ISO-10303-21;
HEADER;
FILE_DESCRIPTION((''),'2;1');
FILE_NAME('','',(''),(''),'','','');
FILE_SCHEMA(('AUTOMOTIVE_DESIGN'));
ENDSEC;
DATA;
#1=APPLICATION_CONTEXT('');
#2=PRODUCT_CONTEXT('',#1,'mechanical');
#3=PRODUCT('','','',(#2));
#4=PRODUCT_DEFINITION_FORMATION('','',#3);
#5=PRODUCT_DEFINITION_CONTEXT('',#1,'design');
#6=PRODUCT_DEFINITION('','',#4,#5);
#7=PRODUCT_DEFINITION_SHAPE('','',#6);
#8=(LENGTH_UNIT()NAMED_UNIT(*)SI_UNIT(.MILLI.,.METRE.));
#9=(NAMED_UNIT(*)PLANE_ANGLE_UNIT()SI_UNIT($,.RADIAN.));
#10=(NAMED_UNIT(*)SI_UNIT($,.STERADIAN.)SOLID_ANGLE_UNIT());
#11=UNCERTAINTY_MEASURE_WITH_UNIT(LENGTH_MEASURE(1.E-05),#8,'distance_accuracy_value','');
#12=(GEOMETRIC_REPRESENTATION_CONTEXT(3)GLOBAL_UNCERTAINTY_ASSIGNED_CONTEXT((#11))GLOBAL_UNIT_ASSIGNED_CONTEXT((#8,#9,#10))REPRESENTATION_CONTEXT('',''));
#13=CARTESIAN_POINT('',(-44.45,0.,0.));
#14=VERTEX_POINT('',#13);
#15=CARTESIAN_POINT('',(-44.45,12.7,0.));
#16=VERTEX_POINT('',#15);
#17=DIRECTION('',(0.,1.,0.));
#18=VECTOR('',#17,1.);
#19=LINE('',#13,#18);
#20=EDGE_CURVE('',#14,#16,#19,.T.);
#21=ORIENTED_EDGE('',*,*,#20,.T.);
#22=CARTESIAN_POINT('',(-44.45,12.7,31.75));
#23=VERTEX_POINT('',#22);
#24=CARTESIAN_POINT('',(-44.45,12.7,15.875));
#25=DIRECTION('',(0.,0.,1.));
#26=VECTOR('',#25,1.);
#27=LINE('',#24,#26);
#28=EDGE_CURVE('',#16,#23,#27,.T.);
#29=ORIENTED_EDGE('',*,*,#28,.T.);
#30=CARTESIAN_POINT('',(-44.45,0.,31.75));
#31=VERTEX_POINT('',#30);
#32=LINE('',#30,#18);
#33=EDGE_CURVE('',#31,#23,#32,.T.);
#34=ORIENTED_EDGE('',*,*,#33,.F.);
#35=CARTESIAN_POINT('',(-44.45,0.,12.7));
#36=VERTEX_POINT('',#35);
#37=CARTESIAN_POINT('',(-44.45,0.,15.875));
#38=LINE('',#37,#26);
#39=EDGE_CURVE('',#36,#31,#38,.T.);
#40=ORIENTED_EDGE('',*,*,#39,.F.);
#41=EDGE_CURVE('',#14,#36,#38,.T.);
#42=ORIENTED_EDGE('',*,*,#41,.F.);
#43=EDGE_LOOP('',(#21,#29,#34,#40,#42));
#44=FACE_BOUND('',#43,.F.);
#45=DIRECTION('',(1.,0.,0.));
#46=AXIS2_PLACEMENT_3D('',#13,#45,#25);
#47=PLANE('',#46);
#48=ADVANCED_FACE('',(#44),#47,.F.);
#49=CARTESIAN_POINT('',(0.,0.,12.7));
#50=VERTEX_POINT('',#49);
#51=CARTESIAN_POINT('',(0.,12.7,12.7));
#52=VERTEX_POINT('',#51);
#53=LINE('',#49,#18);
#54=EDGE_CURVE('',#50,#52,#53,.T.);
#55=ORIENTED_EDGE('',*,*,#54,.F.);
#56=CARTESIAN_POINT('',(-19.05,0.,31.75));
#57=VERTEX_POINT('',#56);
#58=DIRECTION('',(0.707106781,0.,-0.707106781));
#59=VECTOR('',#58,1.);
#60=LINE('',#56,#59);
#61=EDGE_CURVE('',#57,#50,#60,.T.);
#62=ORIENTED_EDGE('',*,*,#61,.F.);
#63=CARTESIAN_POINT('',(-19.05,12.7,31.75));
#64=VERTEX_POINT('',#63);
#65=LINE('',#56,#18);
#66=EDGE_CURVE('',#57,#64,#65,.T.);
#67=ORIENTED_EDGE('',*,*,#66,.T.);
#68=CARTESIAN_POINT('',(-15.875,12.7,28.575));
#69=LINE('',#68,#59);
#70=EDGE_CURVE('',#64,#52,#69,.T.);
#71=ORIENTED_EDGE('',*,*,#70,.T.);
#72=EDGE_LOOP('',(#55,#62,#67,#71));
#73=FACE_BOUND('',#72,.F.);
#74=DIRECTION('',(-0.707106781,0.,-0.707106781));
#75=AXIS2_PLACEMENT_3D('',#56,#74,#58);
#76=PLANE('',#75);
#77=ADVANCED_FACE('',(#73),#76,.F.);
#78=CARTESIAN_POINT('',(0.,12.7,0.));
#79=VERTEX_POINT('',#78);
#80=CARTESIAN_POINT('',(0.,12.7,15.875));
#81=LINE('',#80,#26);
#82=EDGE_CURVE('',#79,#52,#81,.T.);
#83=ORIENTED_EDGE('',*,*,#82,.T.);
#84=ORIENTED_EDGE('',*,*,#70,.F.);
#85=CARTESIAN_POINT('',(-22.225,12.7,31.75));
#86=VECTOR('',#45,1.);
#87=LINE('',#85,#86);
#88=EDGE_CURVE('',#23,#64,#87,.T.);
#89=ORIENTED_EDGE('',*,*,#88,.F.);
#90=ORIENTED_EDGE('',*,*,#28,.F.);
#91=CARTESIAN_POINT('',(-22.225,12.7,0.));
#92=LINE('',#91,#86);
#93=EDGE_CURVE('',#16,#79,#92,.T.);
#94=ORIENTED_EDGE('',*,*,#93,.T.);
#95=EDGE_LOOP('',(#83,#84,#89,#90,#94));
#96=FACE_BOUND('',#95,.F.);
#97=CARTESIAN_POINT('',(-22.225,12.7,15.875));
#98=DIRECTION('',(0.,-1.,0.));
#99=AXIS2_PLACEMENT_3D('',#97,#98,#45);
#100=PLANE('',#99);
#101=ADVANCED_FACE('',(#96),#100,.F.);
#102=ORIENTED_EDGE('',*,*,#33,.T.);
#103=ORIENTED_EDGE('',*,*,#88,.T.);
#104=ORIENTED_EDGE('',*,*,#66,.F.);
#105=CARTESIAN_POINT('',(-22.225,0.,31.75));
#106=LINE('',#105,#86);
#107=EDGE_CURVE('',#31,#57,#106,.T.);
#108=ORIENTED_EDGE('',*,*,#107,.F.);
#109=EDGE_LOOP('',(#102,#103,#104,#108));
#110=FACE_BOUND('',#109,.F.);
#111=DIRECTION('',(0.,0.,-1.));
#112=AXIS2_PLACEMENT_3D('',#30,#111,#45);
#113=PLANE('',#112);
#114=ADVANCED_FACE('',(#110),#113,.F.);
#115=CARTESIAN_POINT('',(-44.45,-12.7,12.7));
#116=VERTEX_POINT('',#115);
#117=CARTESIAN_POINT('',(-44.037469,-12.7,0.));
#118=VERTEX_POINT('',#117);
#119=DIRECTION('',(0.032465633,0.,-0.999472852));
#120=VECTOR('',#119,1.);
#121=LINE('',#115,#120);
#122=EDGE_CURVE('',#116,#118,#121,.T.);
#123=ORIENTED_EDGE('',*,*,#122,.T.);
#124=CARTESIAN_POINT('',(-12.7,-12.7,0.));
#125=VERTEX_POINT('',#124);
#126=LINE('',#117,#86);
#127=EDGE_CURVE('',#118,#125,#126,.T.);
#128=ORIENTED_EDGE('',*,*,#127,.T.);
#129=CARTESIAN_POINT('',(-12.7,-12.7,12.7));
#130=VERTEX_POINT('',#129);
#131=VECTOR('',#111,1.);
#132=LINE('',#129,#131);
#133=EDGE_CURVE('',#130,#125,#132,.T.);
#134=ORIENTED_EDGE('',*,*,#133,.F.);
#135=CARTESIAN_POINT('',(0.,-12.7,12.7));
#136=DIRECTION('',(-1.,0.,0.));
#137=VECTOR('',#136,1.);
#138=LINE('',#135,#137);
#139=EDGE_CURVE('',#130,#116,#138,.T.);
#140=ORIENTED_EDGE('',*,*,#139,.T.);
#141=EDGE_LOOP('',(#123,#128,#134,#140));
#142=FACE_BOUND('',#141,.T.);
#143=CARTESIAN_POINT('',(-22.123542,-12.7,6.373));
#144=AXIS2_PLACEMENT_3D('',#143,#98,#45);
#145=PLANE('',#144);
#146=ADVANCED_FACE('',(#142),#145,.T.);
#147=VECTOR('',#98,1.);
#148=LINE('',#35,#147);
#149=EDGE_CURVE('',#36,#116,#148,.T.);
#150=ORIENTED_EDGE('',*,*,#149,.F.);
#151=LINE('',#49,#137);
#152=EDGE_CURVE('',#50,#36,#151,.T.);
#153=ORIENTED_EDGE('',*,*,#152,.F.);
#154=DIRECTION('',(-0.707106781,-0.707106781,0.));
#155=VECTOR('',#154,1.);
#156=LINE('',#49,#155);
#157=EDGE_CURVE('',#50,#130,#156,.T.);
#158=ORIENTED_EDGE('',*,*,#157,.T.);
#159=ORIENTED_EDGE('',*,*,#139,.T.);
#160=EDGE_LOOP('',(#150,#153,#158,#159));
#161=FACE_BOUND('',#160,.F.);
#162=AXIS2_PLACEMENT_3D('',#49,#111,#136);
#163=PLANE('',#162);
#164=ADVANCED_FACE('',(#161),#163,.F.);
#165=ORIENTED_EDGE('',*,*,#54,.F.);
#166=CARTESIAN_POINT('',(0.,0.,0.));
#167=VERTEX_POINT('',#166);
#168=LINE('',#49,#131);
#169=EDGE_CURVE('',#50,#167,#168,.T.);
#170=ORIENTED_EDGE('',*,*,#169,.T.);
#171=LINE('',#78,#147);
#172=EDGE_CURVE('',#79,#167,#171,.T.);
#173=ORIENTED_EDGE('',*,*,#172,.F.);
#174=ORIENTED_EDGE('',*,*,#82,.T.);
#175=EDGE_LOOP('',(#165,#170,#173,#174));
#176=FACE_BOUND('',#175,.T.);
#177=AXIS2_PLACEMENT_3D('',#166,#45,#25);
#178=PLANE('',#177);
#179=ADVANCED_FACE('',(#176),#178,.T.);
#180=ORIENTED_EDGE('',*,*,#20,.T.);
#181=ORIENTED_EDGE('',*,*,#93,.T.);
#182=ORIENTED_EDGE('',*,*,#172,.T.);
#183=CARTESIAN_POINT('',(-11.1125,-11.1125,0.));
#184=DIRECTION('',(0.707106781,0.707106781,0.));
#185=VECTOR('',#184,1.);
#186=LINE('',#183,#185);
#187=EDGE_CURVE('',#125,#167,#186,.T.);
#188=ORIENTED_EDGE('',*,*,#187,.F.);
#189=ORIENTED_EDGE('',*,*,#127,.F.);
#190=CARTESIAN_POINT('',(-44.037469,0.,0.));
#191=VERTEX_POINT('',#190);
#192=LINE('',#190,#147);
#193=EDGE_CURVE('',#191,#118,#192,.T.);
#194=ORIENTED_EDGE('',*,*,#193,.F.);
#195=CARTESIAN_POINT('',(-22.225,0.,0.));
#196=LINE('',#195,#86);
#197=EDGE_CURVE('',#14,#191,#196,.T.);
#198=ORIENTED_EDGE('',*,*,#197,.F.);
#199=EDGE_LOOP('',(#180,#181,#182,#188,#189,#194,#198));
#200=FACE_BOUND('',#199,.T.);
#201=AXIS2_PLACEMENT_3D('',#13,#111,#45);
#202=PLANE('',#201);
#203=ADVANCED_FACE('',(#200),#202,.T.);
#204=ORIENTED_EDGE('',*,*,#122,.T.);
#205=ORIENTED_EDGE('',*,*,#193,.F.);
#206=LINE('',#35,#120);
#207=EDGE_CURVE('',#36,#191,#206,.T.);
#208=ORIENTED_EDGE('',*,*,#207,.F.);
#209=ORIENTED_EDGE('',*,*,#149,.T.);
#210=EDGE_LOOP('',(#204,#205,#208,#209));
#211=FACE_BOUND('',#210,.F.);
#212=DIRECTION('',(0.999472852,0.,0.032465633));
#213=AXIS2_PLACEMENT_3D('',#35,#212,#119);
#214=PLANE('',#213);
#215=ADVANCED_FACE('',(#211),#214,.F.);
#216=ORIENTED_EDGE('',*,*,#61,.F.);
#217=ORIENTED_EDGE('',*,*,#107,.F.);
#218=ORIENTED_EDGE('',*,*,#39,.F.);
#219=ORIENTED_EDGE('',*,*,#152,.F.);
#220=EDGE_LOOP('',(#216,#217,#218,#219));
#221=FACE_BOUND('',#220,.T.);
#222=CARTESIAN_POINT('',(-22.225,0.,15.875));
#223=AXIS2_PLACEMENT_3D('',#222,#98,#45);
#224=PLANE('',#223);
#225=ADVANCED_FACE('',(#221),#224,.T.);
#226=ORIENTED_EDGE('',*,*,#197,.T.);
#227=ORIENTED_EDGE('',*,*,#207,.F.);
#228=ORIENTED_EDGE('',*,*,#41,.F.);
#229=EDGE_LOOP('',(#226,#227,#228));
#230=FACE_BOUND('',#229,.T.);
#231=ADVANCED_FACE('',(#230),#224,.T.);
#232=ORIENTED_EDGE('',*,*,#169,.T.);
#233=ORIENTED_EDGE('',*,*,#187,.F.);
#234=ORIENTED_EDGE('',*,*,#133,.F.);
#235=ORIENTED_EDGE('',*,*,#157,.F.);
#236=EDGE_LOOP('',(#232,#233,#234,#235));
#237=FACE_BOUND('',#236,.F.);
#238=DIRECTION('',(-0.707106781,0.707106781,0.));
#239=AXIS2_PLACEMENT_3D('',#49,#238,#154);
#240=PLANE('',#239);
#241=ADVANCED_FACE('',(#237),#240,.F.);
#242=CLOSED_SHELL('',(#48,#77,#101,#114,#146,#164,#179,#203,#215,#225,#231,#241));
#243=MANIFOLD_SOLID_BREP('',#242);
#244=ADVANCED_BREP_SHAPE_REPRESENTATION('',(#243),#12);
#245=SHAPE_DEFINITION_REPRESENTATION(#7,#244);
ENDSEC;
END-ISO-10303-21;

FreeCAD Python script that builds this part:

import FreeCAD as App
import Part
import Sketcher
from FreeCAD import Vector
Q = App.Units.Quantity

doc = App.newDocument("Part")
body = doc.addObject("PartDesign::Body", "Body")

sketch1 = body.newObject("Sketcher::SketchObject", "Sketch")
sketch1.AttachmentSupport = (doc.getObject("XZ_Plane"), [""])
sketch1.MapMode = "FlatFace"
sketch1.addGeometry([
    Part.LineSegment(Vector(0, 12.7, 0), Vector(-44.45, 12.7, 0)),
    Part.LineSegment(Vector(-44.45, 12.7, 0), Vector(-44.037469, 0, 0)),
    Part.LineSegment(Vector(-44.037469, 0, 0), Vector(0, 0, 0)),
    Part.LineSegment(Vector(0, 0, 0), Vector(0, 12.7, 0)),
], False)
sketch1.addConstraint([
    Sketcher.Constraint("Coincident", 0, 2, 1, 1),
    Sketcher.Constraint("Coincident", 1, 2, 2, 1),
    Sketcher.Constraint("Coincident", 2, 2, 3, 1),
    Sketcher.Constraint("Coincident", 3, 2, 0, 1),
    Sketcher.Constraint("Horizontal", 0),
    Sketcher.Constraint("Horizontal", 2),
    Sketcher.Constraint("Vertical", 3),
    Sketcher.Constraint("Coincident", 2, 2, -1, 1),
    Sketcher.Constraint("DistanceY", 3, 1, 3, 2, Q("0.5 in")),
    Sketcher.Constraint("DistanceX", 0, 2, 0, 1, Q("1.75 in")),
    Sketcher.Constraint("Distance", 1, 12.706698),
])
pad1 = body.newObject("PartDesign::Pad", "Pad")
pad1.Profile = sketch1
pad1.Length = Q("0.5 in")

sketch2 = body.newObject("Sketcher::SketchObject", "Sketch001")
sketch2.AttachmentSupport = (doc.getObject("XZ_Plane"), [""])
sketch2.MapMode = "FlatFace"
sketch2.addGeometry([
    Part.LineSegment(Vector(-44, 32, 0), Vector(-44, 0, 0)),
    Part.LineSegment(Vector(-44, 0, 0), Vector(0, 0, 0)),
    Part.LineSegment(Vector(0, 0, 0), Vector(0, 32, 0)),
    Part.LineSegment(Vector(0, 32, 0), Vector(-44, 32, 0)),
], False)
sketch2.addConstraint([
    Sketcher.Constraint("Coincident", 0, 2, 1, 1),
    Sketcher.Constraint("Coincident", 1, 2, 2, 1),
    Sketcher.Constraint("Coincident", 2, 2, 3, 1),
    Sketcher.Constraint("Coincident", 3, 2, 0, 1),
    Sketcher.Constraint("Vertical", 0),
    Sketcher.Constraint("Horizontal", 1),
    Sketcher.Constraint("Vertical", 2),
    Sketcher.Constraint("Horizontal", 3),
    Sketcher.Constraint("Coincident", 1, 2, -1, 1),
    Sketcher.Constraint("DistanceX", 1, 1, 1, 2, Q("1.75 in")),
    Sketcher.Constraint("DistanceY", 0, 2, 0, 1, Q("1.25 in")),
])
pad2 = body.newObject("PartDesign::Pad", "Pad001")
pad2.Profile = sketch2
pad2.Length = Q("0.5 in")
pad2.Reversed = True

sketch3 = body.newObject("Sketcher::SketchObject", "Sketch002")
sketch3.AttachmentSupport = (doc.getObject("XZ_Plane"), [""])
sketch3.MapMode = "FlatFace"
sketch3.addGeometry([
    Part.LineSegment(Vector(0, 32, 0), Vector(-19, 32, 0)),
    Part.LineSegment(Vector(-19, 32, 0), Vector(0, 13, 0)),
    Part.LineSegment(Vector(0, 13, 0), Vector(0, 32, 0)),
], False)
sketch3.addConstraint([
    Sketcher.Constraint("Coincident", 0, 2, 1, 1),
    Sketcher.Constraint("Coincident", 1, 2, 2, 1),
    Sketcher.Constraint("Coincident", 2, 2, 0, 1),
    Sketcher.Constraint("Horizontal", 0),
    Sketcher.Constraint("Vertical", 2),
    Sketcher.Constraint("PointOnObject", 1, 2, -2),
    Sketcher.Constraint("Equal", 0, 2),
    Sketcher.Constraint("DistanceX", 0, 2, 0, 1, Q("0.75 in")),
    Sketcher.Constraint("DistanceY", -1, 1, 1, 2, Q("0.5 in")),
])
pocket1 = body.newObject("PartDesign::Pocket", "Pocket")
pocket1.Profile = sketch3
pocket1.Length = Q("1 in")

sketch4 = body.newObject("Sketcher::SketchObject", "Sketch003")
sketch4.AttachmentSupport = (doc.getObject("XY_Plane"), [""])
sketch4.MapMode = "FlatFace"
sketch4.AttachmentOffset = App.Placement(Vector(0, 0, 0.5 * 25.4), App.Rotation())
sketch4.addGeometry([
    Part.LineSegment(Vector(0, 0, 0), Vector(-13, -13, 0)),
    Part.LineSegment(Vector(-13, -13, 0), Vector(0, -13, 0)),
    Part.LineSegment(Vector(0, -13, 0), Vector(0, 0, 0)),
], False)
sketch4.addConstraint([
    Sketcher.Constraint("Coincident", 0, 2, 1, 1),
    Sketcher.Constraint("Coincident", 1, 2, 2, 1),
    Sketcher.Constraint("Coincident", 2, 2, 0, 1),
    Sketcher.Constraint("Horizontal", 1),
    Sketcher.Constraint("Vertical", 2),
    Sketcher.Constraint("Coincident", 2, 2, -1, 1),
    Sketcher.Constraint("Equal", 1, 2),
    Sketcher.Constraint("DistanceX", 1, 1, 1, 2, Q("0.5 in")),
])
pocket2 = body.newObject("PartDesign::Pocket", "Pocket001")
pocket2.Profile = sketch4
pocket2.Length = Q("1 in")

doc.recompute()
